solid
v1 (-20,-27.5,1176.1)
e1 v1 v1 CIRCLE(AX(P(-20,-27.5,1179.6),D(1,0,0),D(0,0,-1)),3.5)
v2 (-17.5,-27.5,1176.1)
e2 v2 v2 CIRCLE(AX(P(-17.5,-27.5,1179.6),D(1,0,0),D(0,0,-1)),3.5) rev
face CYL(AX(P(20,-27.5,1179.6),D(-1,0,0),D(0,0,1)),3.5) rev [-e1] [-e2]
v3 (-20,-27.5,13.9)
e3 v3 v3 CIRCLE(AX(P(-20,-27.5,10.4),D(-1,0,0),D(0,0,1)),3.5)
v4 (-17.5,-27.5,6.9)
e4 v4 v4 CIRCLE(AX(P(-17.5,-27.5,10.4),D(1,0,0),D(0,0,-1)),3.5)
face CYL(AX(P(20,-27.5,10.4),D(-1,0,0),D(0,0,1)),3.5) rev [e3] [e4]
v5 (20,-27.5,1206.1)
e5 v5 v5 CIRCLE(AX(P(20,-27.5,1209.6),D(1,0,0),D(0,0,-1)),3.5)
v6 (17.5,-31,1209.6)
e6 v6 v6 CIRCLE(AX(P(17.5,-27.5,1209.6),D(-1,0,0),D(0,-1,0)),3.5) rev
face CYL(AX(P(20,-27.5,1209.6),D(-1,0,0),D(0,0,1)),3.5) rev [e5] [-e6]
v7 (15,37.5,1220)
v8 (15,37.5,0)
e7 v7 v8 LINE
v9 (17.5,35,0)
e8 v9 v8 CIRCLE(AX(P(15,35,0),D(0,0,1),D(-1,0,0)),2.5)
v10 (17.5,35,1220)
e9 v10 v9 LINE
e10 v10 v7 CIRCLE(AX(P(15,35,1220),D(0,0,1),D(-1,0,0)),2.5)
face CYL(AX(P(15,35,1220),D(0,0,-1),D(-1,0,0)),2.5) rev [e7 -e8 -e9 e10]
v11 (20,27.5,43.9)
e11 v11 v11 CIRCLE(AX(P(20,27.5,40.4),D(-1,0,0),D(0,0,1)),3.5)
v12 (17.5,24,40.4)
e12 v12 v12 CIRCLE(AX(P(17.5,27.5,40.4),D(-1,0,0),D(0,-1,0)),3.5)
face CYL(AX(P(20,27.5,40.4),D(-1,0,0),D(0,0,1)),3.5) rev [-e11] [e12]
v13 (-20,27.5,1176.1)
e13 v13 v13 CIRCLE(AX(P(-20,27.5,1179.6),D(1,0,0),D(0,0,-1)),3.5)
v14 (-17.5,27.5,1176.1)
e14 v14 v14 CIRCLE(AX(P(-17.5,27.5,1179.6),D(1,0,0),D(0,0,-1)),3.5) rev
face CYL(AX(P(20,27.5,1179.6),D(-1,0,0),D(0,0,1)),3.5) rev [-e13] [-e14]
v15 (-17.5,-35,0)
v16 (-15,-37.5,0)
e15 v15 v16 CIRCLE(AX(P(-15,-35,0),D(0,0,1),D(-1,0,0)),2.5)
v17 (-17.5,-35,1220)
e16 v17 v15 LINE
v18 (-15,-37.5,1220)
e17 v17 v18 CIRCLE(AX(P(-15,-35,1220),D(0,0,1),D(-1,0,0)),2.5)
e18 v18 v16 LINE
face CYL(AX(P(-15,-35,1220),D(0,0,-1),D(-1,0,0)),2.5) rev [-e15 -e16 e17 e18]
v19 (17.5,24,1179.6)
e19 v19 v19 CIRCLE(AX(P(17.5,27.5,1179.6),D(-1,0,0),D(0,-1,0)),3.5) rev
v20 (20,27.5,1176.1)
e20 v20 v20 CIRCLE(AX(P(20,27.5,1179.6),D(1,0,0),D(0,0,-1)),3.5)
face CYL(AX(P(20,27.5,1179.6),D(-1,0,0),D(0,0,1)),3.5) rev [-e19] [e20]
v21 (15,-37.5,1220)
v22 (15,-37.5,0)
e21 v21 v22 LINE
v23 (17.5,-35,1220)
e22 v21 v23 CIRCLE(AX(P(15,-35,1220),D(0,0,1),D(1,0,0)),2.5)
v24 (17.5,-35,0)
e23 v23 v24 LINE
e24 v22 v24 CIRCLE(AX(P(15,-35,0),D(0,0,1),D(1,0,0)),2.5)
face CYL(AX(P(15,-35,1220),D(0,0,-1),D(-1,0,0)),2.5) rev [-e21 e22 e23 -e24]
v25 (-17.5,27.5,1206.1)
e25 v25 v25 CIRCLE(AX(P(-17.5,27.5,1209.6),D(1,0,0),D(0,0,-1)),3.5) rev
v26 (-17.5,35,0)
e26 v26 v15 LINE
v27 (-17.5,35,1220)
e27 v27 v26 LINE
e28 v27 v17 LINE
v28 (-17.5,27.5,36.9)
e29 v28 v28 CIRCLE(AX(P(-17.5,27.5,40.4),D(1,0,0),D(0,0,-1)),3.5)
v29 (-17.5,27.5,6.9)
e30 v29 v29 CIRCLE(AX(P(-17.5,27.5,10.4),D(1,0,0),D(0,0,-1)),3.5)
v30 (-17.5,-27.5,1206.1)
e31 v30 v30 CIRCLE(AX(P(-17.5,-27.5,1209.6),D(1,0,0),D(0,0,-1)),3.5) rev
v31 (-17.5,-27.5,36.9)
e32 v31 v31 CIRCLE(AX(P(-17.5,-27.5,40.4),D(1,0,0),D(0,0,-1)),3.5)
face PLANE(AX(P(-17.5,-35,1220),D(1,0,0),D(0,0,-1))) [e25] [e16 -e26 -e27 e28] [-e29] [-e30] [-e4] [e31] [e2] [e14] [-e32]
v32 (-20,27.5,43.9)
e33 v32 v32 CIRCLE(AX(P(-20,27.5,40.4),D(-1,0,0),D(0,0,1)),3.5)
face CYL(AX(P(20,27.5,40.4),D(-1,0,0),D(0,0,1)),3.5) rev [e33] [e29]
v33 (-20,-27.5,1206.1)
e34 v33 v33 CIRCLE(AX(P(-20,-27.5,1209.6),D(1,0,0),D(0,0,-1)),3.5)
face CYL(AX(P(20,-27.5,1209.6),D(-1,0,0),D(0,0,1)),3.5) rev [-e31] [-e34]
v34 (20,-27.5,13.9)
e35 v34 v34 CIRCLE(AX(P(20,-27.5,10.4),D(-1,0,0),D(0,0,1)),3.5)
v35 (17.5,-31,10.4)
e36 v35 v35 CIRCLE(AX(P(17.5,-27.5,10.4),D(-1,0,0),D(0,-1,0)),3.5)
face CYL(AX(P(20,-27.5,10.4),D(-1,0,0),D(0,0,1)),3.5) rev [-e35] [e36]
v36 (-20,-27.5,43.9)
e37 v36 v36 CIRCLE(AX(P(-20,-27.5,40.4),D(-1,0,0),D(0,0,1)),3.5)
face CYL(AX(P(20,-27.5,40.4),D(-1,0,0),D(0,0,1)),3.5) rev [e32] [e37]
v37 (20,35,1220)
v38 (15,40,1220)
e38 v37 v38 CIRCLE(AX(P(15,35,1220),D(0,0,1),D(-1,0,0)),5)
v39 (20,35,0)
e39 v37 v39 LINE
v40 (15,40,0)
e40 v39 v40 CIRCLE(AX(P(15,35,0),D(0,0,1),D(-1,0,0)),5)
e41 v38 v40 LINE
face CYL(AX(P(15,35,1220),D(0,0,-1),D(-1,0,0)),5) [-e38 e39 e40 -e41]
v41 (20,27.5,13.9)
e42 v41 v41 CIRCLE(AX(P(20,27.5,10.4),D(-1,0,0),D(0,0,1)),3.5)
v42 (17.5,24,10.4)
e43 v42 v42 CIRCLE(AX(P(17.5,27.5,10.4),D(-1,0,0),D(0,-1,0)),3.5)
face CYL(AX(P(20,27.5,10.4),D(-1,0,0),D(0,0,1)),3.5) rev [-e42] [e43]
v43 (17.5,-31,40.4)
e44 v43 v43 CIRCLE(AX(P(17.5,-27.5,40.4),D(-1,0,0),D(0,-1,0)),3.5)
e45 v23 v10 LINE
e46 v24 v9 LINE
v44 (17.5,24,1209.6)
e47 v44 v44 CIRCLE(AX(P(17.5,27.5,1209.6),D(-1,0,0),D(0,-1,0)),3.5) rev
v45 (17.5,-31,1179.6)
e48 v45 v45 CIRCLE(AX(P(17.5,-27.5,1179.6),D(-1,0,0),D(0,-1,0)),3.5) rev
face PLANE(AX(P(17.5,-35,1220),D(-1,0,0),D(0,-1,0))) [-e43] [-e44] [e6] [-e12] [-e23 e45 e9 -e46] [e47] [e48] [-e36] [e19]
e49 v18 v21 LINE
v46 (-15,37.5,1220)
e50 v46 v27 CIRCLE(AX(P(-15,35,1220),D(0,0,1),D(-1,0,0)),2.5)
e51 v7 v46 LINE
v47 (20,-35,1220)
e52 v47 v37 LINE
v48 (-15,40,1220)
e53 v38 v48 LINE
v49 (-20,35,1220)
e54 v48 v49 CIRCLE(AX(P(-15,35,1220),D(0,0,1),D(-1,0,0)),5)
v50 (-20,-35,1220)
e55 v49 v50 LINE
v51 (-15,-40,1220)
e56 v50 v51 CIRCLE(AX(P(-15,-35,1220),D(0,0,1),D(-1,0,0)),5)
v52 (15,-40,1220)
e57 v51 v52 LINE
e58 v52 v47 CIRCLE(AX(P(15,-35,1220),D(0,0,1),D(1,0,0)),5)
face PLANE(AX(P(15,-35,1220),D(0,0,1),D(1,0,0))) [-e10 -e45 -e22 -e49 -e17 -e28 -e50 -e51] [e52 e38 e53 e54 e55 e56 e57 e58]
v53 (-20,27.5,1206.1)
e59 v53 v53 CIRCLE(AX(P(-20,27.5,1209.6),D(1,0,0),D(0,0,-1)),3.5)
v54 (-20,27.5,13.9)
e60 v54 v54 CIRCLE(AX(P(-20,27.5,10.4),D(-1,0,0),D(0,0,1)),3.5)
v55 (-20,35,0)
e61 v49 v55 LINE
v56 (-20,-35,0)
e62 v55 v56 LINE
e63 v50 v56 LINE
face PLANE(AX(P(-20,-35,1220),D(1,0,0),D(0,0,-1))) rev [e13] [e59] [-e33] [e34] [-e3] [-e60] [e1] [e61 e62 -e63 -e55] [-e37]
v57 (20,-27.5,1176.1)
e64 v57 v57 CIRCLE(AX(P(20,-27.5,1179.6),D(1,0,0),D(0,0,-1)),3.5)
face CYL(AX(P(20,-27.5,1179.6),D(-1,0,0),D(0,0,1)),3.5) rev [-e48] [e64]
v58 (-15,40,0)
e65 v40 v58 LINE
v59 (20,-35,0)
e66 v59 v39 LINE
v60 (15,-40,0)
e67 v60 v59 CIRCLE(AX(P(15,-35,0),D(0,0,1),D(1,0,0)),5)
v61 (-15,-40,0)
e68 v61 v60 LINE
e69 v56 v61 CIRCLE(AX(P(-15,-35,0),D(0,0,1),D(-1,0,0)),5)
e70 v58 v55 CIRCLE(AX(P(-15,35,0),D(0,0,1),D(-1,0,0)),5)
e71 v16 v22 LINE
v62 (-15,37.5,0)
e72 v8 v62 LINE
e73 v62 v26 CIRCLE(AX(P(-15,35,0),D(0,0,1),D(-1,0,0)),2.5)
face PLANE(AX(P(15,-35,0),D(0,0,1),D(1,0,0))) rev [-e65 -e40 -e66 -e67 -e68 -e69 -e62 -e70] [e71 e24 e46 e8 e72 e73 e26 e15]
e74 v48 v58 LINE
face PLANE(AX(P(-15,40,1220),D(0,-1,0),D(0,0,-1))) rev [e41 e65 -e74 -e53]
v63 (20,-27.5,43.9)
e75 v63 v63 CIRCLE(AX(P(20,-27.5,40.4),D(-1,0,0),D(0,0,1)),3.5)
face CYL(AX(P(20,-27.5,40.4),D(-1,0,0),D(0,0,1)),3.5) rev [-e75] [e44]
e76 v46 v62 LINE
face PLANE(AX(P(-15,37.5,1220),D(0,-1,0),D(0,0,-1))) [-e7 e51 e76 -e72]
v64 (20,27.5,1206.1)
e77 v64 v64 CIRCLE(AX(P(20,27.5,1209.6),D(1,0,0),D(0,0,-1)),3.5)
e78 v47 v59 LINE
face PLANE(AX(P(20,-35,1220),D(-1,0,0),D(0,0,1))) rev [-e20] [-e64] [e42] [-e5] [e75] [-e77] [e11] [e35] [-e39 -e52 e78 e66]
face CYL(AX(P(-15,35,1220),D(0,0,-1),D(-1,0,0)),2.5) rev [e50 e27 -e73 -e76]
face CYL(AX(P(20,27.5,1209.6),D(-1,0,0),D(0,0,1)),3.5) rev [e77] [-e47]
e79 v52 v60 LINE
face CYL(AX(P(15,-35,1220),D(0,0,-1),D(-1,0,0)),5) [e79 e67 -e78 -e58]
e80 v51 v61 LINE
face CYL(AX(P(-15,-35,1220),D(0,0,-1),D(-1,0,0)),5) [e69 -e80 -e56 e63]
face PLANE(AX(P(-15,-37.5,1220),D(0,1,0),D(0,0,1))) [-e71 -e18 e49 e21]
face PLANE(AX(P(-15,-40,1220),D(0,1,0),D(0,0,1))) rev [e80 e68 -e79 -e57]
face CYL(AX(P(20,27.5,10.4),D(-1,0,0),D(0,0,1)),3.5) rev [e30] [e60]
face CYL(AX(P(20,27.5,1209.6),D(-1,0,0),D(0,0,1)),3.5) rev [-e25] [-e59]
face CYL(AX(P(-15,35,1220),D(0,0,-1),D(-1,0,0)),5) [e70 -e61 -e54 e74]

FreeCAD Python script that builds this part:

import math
import FreeCAD as App
import Part
import Sketcher

V = App.Vector
Q = App.Units.Quantity

doc = App.newDocument("Part")
body = doc.addObject("PartDesign::Body", "Body")

# Sketch on XY plane
sketch1 = body.newObject("Sketcher::SketchObject", "Sketch")
sketch1.AttachmentSupport = (doc.getObject("XY_Plane"), [""])
sketch1.MapMode = "FlatFace"
sketch1.addGeometry([
    Part.LineSegment(V(-15, -40, 0), V(15, -40, 0)),  # 0
    Part.ArcOfCircle(Part.Circle(V(15, -35, 0), V(0, 0, 1), 5), math.radians(-90), math.radians(0)),  # 1
    Part.LineSegment(V(20, -35, 0), V(20, 35, 0)),  # 2
    Part.ArcOfCircle(Part.Circle(V(15, 35, 0), V(0, 0, 1), 5), math.radians(0), math.radians(90)),  # 3
    Part.LineSegment(V(15, 40, 0), V(-15, 40, 0)),  # 4
    Part.ArcOfCircle(Part.Circle(V(-15, 35, 0), V(0, 0, 1), 5), math.radians(90), math.radians(180)),  # 5
    Part.LineSegment(V(-20, 35, 0), V(-20, -35, 0)),  # 6
    Part.ArcOfCircle(Part.Circle(V(-15, -35, 0), V(0, 0, 1), 5), math.radians(180), math.radians(270)),  # 7
    Part.ArcOfCircle(Part.Circle(V(-15, -35, 0), V(0, 0, 1), 2.5), math.radians(180), math.radians(270)),  # 8
    Part.LineSegment(V(-17.5, -35, 0), V(-17.5, 35, 0)),  # 9
    Part.ArcOfCircle(Part.Circle(V(-15, 35, 0), V(0, 0, 1), 2.5), math.radians(90), math.radians(180)),  # 10
    Part.LineSegment(V(-15, 37.5, 0), V(15, 37.5, 0)),  # 11
    Part.ArcOfCircle(Part.Circle(V(15, 35, 0), V(0, 0, 1), 2.5), math.radians(0), math.radians(90)),  # 12
    Part.LineSegment(V(17.5, 35, 0), V(17.5, -35, 0)),  # 13
    Part.ArcOfCircle(Part.Circle(V(15, -35, 0), V(0, 0, 1), 2.5), math.radians(-90), math.radians(0)),  # 14
    Part.LineSegment(V(15, -37.5, 0), V(-15, -37.5, 0)),  # 15
], False)
sketch1.addConstraint([
    Sketcher.Constraint("Tangent", 0, 2, 1, 1),
    Sketcher.Constraint("Tangent", 1, 2, 2, 1),
    Sketcher.Constraint("Tangent", 2, 2, 3, 1),
    Sketcher.Constraint("Tangent", 3, 2, 4, 1),
    Sketcher.Constraint("Tangent", 4, 2, 5, 1),
    Sketcher.Constraint("Tangent", 5, 2, 6, 1),
    Sketcher.Constraint("Tangent", 6, 2, 7, 1),
    Sketcher.Constraint("Tangent", 7, 2, 0, 1),
    Sketcher.Constraint("Tangent", 8, 1, 9, 1),
    Sketcher.Constraint("Tangent", 9, 2, 10, 2),
    Sketcher.Constraint("Tangent", 10, 1, 11, 1),
    Sketcher.Constraint("Tangent", 11, 2, 12, 2),
    Sketcher.Constraint("Tangent", 12, 1, 13, 1),
    Sketcher.Constraint("Tangent", 13, 2, 14, 2),
    Sketcher.Constraint("Tangent", 14, 1, 15, 1),
    Sketcher.Constraint("Tangent", 15, 2, 8, 2),
    Sketcher.Constraint("Horizontal", 0),
    Sketcher.Constraint("Vertical", 2),
    Sketcher.Constraint("Horizontal", 4),
    Sketcher.Constraint("Vertical", 6),
    Sketcher.Constraint("Vertical", 9),
    Sketcher.Constraint("Horizontal", 11),
    Sketcher.Constraint("Vertical", 13),
    Sketcher.Constraint("Horizontal", 15),
    Sketcher.Constraint("Coincident", 8, 3, 7, 3),
    Sketcher.Constraint("Coincident", 10, 3, 5, 3),
    Sketcher.Constraint("Coincident", 12, 3, 3, 3),
    Sketcher.Constraint("Equal", 1, 3),
    Sketcher.Constraint("Equal", 3, 5),
    Sketcher.Constraint("Equal", 5, 7),
    Sketcher.Constraint("Equal", 12, 14),
    Sketcher.Constraint("Symmetric", 1, 3, 5, 3, -1, 1),
    Sketcher.Constraint("Radius", 1, Q("5 mm")),
    Sketcher.Constraint("Radius", 8, Q("2.5 mm")),
    Sketcher.Constraint("DistanceX", 0, 1, 0, 2, Q("30 mm")),
    Sketcher.Constraint("DistanceY", 2, 1, 2, 2, Q("70 mm")),
])
pad1 = body.newObject("PartDesign::Pad", "Pad")
pad1.Profile = sketch1
pad1.Length = 1220

# Sketch on YZ plane
sketch2 = body.newObject("Sketcher::SketchObject", "Sketch001")
sketch2.AttachmentSupport = (doc.getObject("YZ_Plane"), [""])
sketch2.MapMode = "FlatFace"
sketch2.AttachmentOffset = App.Placement(V(0, 0, -20), App.Rotation())
sketch2.addGeometry([
    Part.Circle(V(27.5, 10.4, 0), V(0, 0, 1), 3.5),
    Part.Circle(V(27.5, 40.4, 0), V(0, 0, 1), 3.5),
    Part.Circle(V(-27.5, 40.4, 0), V(0, 0, 1), 3.5),
    Part.Circle(V(-27.5, 10.4, 0), V(0, 0, 1), 3.5),
], False)
sketch2.addConstraint([
    Sketcher.Constraint("Equal", 0, 1),
    Sketcher.Constraint("Equal", 1, 2),
    Sketcher.Constraint("Equal", 2, 3),
    Sketcher.Constraint("Symmetric", 1, 3, 2, 3, -2),
    Sketcher.Constraint("Symmetric", 0, 3, 3, 3, -2),
    Sketcher.Constraint("Vertical", 0, 3, 1, 3),
    Sketcher.Constraint("Diameter", 0, Q("7 mm")),
    Sketcher.Constraint("DistanceY", 0, 3, 1, 3, Q("30 mm")),
    Sketcher.Constraint("DistanceX", 2, 3, 1, 3, Q("55 mm")),
    Sketcher.Constraint("DistanceY", -1, 1, 0, 3, Q("10.4 mm")),
])
pocket1 = body.newObject("PartDesign::Pocket", "Pocket")
pocket1.Profile = sketch2
pocket1.Type = "ThroughAll"
pocket1.Reversed = True
doc.recompute()

datumplane = body.newObject("PartDesign::Plane", "DatumPlane")
datumplane.AttachmentSupport = (doc.getObject("XY_Plane"), [""])
datumplane.MapMode = "FlatFace"
datumplane.AttachmentOffset = App.Placement(V(0, 0, 610), App.Rotation())
mirrored = body.newObject("PartDesign::Mirrored", "Mirrored")
mirrored.Originals = [pocket1]
mirrored.MirrorPlane = (datumplane, [""])
body.Tip = mirrored

doc.recompute()
